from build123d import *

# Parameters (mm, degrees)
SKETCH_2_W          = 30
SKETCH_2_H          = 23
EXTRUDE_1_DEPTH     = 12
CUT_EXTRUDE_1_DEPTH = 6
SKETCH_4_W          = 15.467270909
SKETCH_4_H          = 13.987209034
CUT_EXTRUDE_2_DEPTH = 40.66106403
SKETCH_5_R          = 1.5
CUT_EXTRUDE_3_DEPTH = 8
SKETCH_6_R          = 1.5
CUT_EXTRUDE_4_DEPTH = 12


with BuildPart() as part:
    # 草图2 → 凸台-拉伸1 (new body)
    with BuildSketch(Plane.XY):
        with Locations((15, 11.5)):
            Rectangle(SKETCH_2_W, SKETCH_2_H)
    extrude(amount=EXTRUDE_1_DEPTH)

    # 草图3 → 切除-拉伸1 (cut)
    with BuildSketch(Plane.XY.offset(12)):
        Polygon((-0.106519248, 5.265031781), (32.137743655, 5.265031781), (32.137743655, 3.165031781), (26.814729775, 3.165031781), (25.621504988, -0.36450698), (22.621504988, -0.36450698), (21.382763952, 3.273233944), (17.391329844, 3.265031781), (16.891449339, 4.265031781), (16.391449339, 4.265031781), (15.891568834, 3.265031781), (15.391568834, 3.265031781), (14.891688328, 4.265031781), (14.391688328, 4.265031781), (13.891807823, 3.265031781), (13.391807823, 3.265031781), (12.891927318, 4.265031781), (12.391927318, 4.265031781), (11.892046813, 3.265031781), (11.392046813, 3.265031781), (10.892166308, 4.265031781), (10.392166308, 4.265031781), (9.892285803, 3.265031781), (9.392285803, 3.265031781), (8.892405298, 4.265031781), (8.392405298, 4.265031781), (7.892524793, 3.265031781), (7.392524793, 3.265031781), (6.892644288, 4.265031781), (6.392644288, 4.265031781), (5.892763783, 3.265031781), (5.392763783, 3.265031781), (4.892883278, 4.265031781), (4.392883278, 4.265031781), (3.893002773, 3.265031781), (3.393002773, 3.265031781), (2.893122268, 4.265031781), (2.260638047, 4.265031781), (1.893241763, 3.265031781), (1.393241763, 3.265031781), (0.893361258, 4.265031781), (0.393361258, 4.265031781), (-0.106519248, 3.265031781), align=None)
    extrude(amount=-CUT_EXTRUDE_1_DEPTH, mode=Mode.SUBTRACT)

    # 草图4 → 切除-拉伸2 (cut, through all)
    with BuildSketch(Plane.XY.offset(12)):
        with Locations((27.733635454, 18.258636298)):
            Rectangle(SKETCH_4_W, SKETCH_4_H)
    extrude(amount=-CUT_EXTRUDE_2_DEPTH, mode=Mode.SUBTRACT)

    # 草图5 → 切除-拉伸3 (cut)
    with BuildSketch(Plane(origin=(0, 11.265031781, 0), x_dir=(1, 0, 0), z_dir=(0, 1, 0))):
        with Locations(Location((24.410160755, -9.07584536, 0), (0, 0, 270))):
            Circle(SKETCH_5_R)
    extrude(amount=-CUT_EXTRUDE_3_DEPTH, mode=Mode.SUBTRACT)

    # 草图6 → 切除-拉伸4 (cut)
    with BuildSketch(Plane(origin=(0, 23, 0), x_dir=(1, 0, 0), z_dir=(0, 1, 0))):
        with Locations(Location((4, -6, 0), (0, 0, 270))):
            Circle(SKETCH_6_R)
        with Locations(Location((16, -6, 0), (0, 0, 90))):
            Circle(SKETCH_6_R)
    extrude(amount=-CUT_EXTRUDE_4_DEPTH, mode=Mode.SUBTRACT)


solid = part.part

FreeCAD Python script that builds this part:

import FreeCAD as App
import Part
import Sketcher

V = App.Vector


def add_polygon(sketch, points):
    """Adds a closed chain of lines whose ends are joined by coincident constraints."""
    first, n = sketch.GeometryCount, len(points)
    for a, b in zip(points, points[1:] + points[:1]):
        sketch.addGeometry(Part.LineSegment(App.Vector(*a, 0), App.Vector(*b, 0)), False)
    for i in range(n):
        sketch.addConstraint(Sketcher.Constraint("Coincident", first + i, 2, first + (i + 1) % n, 1))

doc = App.newDocument("Part")
body = doc.addObject("PartDesign::Body", "Body")

# Sketch on XY plane
sketch1 = doc.addObject("Sketcher::SketchObject", "Sketch")
body.addObject(sketch1)
sketch1.AttachmentSupport = (doc.XY_Plane, [""])
sketch1.MapMode = "FlatFace"
add_polygon(sketch1, [(0, 23), (0, 0), (30, 0), (30, 23)])  # lines 0-3
sketch1.addConstraint([
    Sketcher.Constraint("Vertical", 0),
    Sketcher.Constraint("Horizontal", 1),
    Sketcher.Constraint("Vertical", 2),
    Sketcher.Constraint("Horizontal", 3),
    Sketcher.Constraint("Coincident", 0, 2, -1, 1),
    Sketcher.Constraint("DistanceX", 1, 1, 1, 2, 30.0),
    Sketcher.Constraint("DistanceY", 0, 2, 0, 1, 23.0),
])
pad1 = doc.addObject("PartDesign::Pad", "Pad")
body.addObject(pad1)
pad1.Profile = sketch1
pad1.Length = 12

# Sketch on XY plane
sketch2 = doc.addObject("Sketcher::SketchObject", "Sketch001")
body.addObject(sketch2)
sketch2.AttachmentSupport = (doc.XY_Plane, [""])
sketch2.MapMode = "FlatFace"
sketch2.AttachmentOffset = App.Placement(V(0, 0, 12), App.Rotation())
add_polygon(sketch2, [(32.1, 5.3), (-0.1, 5.3), (-0.1, 3.3), (0.4, 4.3), (0.9, 4.3), (1.4, 3.3), (1.9, 3.3), (2.3, 4.3), (2.9, 4.3), (3.4, 3.3), (3.9, 3.3), (4.4, 4.3), (4.9, 4.3), (5.4, 3.3), (5.9, 3.3), (6.4, 4.3), (6.9, 4.3), (7.4, 3.3), (7.9, 3.3), (8.4, 4.3), (8.9, 4.3), (9.4, 3.3), (9.9, 3.3), (10.4, 4.3), (10.9, 4.3), (11.4, 3.3), (11.9, 3.3), (12.4, 4.3), (12.9, 4.3), (13.4, 3.3), (13.9, 3.3), (14.4, 4.3), (14.9, 4.3), (15.4, 3.3), (15.9, 3.3), (16.4, 4.3), (16.9, 4.3), (17.4, 3.3), (21.4, 3.3), (22.6, -0.4), (25.6, -0.4), (26.8, 3.2), (32.1, 3.2)])  # lines 0-42
sketch2.addConstraint([
    Sketcher.Constraint("Horizontal", 0),
    Sketcher.Constraint("Vertical", 1),
    Sketcher.Constraint("Horizontal", 3),
    Sketcher.Constraint("Horizontal", 5),
    Sketcher.Constraint("Horizontal", 7),
    Sketcher.Constraint("Horizontal", 9),
    Sketcher.Constraint("Horizontal", 11),
    Sketcher.Constraint("Horizontal", 13),
    Sketcher.Constraint("Horizontal", 15),
    Sketcher.Constraint("Horizontal", 17),
    Sketcher.Constraint("Horizontal", 19),
    Sketcher.Constraint("Horizontal", 21),
    Sketcher.Constraint("Horizontal", 23),
    Sketcher.Constraint("Horizontal", 25),
    Sketcher.Constraint("Horizontal", 27),
    Sketcher.Constraint("Horizontal", 29),
    Sketcher.Constraint("Horizontal", 31),
    Sketcher.Constraint("Horizontal", 33),
    Sketcher.Constraint("Horizontal", 35),
    Sketcher.Constraint("Horizontal", 39),
    Sketcher.Constraint("Horizontal", 41),
    Sketcher.Constraint("Vertical", 42),
    Sketcher.Constraint("Parallel", 4, 8),
    Sketcher.Constraint("Parallel", 2, 10),
    Sketcher.Constraint("Parallel", 8, 12),
    Sketcher.Constraint("Parallel", 10, 14),
    Sketcher.Constraint("Parallel", 12, 16),
    Sketcher.Constraint("Parallel", 14, 18),
    Sketcher.Constraint("Parallel", 16, 20),
    Sketcher.Constraint("Parallel", 18, 22),
    Sketcher.Constraint("Parallel", 20, 24),
    Sketcher.Constraint("Parallel", 22, 26),
    Sketcher.Constraint("Parallel", 24, 28),
    Sketcher.Constraint("Parallel", 26, 30),
    Sketcher.Constraint("Parallel", 28, 32),
    Sketcher.Constraint("Parallel", 30, 34),
    Sketcher.Constraint("Parallel", 32, 36),
    Sketcher.Constraint("Horizontal", 1, 2, 4, 2),
    Sketcher.Constraint("Horizontal", 3, 2, 6, 2),
    Sketcher.Constraint("Horizontal", 5, 2, 8, 2),
    Sketcher.Constraint("Horizontal", 7, 2, 10, 2),
    Sketcher.Constraint("Horizontal", 9, 2, 12, 2),
    Sketcher.Constraint("Horizontal", 11, 2, 14, 2),
    Sketcher.Constraint("Horizontal", 13, 2, 16, 2),
    Sketcher.Constraint("Horizontal", 15, 2, 18, 2),
    Sketcher.Constraint("Horizontal", 17, 2, 20, 2),
    Sketcher.Constraint("Horizontal", 19, 2, 22, 2),
    Sketcher.Constraint("Horizontal", 21, 2, 24, 2),
    Sketcher.Constraint("Horizontal", 23, 2, 26, 2),
    Sketcher.Constraint("Horizontal", 25, 2, 28, 2),
    Sketcher.Constraint("Horizontal", 27, 2, 30, 2),
    Sketcher.Constraint("Horizontal", 29, 2, 32, 2),
    Sketcher.Constraint("Horizontal", 31, 2, 34, 2),
    Sketcher.Constraint("Horizontal", 33, 2, 36, 2),
    Sketcher.Constraint("Equal", 3, 5),
    Sketcher.Constraint("Equal", 5, 9),
    Sketcher.Constraint("Equal", 9, 11),
    Sketcher.Constraint("Equal", 11, 13),
    Sketcher.Constraint("Equal", 13, 15),
    Sketcher.Constraint("Equal", 15, 17),
    Sketcher.Constraint("Equal", 17, 19),
    Sketcher.Constraint("Equal", 19, 21),
    Sketcher.Constraint("Equal", 21, 23),
    Sketcher.Constraint("Equal", 23, 25),
    Sketcher.Constraint("Equal", 25, 27),
    Sketcher.Constraint("Equal", 27, 29),
    Sketcher.Constraint("Equal", 29, 31),
    Sketcher.Constraint("Equal", 31, 33),
    Sketcher.Constraint("Equal", 33, 35),
    Sketcher.Constraint("Equal", 2, 4),
    Sketcher.Constraint("DistanceX", 39, 1, 39, 2, 3.0),
    Sketcher.Constraint("DistanceY", 1, 2, 1, 1, 2.0),
    Sketcher.Constraint("DistanceX", 3, 1, 3, 2, 0.5),
    Sketcher.Constraint("DistanceY", 42, 1, 42, 2, 2.1),
    Sketcher.Constraint("DistanceY", 2, 2, 0, 2, 1.0),
    Sketcher.Constraint("DistanceX", 36, 2, 40, 2, 9.4234),
    Sketcher.Constraint("Distance", 2, 1.117981),
    Sketcher.Constraint("Distance", 38, 3.842869),
    Sketcher.Constraint("Distance", 40, 3.725779),
    Sketcher.Constraint("DistanceX", 0, 2, 0, 1, 32.244263),
    Sketcher.Constraint("DistanceX", 7, 1, 7, 2, 0.632484),
    Sketcher.Constraint("DistanceX", 41, 1, 41, 2, 5.323014),
    Sketcher.Constraint("DistanceX", 0, 2, -1, 1, 0.106519),
    Sketcher.Constraint("DistanceY", -1, 1, 0, 2, 5.265032),
    Sketcher.Constraint("DistanceX", 37, 2, 38, 2, 1.238741),
    Sketcher.Constraint("DistanceY", 38, 2, 36, 2, 3.629539),
])
pocket1 = doc.addObject("PartDesign::Pocket", "Pocket")
body.addObject(pocket1)
pocket1.Profile = sketch2
pocket1.Length = 6

# Sketch on XY plane
sketch3 = doc.addObject("Sketcher::SketchObject", "Sketch002")
body.addObject(sketch3)
sketch3.AttachmentSupport = (doc.XY_Plane, [""])
sketch3.MapMode = "FlatFace"
sketch3.AttachmentOffset = App.Placement(V(0, 0, 12), App.Rotation())
add_polygon(sketch3, [(20, 25), (20, 11), (35, 11), (35, 25)])  # lines 0-3
sketch3.addConstraint([
    Sketcher.Constraint("Vertical", 0),
    Sketcher.Constraint("Horizontal", 1),
    Sketcher.Constraint("Vertical", 2),
    Sketcher.Constraint("Horizontal", 3),
    Sketcher.Constraint("DistanceX", -1, 1, 0, 2, 20.0),
    Sketcher.Constraint("DistanceX", 1, 1, 1, 2, 15.467271),
    Sketcher.Constraint("DistanceY", 0, 2, 0, 1, 13.987209),
    Sketcher.Constraint("DistanceY", -1, 1, 0, 2, 11.265032),
])
pocket2 = doc.addObject("PartDesign::Pocket", "Pocket001")
body.addObject(pocket2)
pocket2.Profile = sketch3
pocket2.Type = "ThroughAll"

# Sketch on XZ plane
sketch4 = doc.addObject("Sketcher::SketchObject", "Sketch003")
body.addObject(sketch4)
sketch4.AttachmentSupport = (doc.XZ_Plane, [""])
sketch4.MapMode = "FlatFace"
sketch4.AttachmentOffset = App.Placement(V(0, 0, -11.265032), App.Rotation())
sketch4.addGeometry(Part.Circle(V(24.4, 9.1, 0), V(0, 0, 1), 1.5), False)
sketch4.addConstraint([
    Sketcher.Constraint("Diameter", 0, 3.0),
    Sketcher.Constraint("DistanceX", -1, 1, 0, 3, 24.410161),
    Sketcher.Constraint("DistanceY", -1, 1, 0, 3, 9.075845),
])
pocket3 = doc.addObject("PartDesign::Pocket", "Pocket002")
body.addObject(pocket3)
pocket3.Profile = sketch4
pocket3.Length = 8
pocket3.Reversed = True

# Sketch on XZ plane
sketch5 = doc.addObject("Sketcher::SketchObject", "Sketch004")
body.addObject(sketch5)
sketch5.AttachmentSupport = (doc.XZ_Plane, [""])
sketch5.MapMode = "FlatFace"
sketch5.AttachmentOffset = App.Placement(V(0, 0, -23), App.Rotation())
sketch5.addGeometry([
    Part.Circle(V(4, 6, 0), V(0, 0, 1), 1.5),
    Part.Circle(V(16, 6, 0), V(0, 0, 1), 1.5),
], False)
sketch5.addConstraint([
    Sketcher.Constraint("Equal", 0, 1),
    Sketcher.Constraint("Horizontal", 0, 3, 1, 3),
    Sketcher.Constraint("Diameter", 0, 3.0),
    Sketcher.Constraint("DistanceX", -1, 1, 0, 3, 4.0),
    Sketcher.Constraint("DistanceY", -1, 1, 0, 3, 6.0),
    Sketcher.Constraint("DistanceX", -1, 1, 1, 3, 16.0),
])
pocket4 = doc.addObject("PartDesign::Pocket", "Pocket003")
body.addObject(pocket4)
pocket4.Profile = sketch5
pocket4.Length = 12
pocket4.Reversed = True

doc.recompute()
